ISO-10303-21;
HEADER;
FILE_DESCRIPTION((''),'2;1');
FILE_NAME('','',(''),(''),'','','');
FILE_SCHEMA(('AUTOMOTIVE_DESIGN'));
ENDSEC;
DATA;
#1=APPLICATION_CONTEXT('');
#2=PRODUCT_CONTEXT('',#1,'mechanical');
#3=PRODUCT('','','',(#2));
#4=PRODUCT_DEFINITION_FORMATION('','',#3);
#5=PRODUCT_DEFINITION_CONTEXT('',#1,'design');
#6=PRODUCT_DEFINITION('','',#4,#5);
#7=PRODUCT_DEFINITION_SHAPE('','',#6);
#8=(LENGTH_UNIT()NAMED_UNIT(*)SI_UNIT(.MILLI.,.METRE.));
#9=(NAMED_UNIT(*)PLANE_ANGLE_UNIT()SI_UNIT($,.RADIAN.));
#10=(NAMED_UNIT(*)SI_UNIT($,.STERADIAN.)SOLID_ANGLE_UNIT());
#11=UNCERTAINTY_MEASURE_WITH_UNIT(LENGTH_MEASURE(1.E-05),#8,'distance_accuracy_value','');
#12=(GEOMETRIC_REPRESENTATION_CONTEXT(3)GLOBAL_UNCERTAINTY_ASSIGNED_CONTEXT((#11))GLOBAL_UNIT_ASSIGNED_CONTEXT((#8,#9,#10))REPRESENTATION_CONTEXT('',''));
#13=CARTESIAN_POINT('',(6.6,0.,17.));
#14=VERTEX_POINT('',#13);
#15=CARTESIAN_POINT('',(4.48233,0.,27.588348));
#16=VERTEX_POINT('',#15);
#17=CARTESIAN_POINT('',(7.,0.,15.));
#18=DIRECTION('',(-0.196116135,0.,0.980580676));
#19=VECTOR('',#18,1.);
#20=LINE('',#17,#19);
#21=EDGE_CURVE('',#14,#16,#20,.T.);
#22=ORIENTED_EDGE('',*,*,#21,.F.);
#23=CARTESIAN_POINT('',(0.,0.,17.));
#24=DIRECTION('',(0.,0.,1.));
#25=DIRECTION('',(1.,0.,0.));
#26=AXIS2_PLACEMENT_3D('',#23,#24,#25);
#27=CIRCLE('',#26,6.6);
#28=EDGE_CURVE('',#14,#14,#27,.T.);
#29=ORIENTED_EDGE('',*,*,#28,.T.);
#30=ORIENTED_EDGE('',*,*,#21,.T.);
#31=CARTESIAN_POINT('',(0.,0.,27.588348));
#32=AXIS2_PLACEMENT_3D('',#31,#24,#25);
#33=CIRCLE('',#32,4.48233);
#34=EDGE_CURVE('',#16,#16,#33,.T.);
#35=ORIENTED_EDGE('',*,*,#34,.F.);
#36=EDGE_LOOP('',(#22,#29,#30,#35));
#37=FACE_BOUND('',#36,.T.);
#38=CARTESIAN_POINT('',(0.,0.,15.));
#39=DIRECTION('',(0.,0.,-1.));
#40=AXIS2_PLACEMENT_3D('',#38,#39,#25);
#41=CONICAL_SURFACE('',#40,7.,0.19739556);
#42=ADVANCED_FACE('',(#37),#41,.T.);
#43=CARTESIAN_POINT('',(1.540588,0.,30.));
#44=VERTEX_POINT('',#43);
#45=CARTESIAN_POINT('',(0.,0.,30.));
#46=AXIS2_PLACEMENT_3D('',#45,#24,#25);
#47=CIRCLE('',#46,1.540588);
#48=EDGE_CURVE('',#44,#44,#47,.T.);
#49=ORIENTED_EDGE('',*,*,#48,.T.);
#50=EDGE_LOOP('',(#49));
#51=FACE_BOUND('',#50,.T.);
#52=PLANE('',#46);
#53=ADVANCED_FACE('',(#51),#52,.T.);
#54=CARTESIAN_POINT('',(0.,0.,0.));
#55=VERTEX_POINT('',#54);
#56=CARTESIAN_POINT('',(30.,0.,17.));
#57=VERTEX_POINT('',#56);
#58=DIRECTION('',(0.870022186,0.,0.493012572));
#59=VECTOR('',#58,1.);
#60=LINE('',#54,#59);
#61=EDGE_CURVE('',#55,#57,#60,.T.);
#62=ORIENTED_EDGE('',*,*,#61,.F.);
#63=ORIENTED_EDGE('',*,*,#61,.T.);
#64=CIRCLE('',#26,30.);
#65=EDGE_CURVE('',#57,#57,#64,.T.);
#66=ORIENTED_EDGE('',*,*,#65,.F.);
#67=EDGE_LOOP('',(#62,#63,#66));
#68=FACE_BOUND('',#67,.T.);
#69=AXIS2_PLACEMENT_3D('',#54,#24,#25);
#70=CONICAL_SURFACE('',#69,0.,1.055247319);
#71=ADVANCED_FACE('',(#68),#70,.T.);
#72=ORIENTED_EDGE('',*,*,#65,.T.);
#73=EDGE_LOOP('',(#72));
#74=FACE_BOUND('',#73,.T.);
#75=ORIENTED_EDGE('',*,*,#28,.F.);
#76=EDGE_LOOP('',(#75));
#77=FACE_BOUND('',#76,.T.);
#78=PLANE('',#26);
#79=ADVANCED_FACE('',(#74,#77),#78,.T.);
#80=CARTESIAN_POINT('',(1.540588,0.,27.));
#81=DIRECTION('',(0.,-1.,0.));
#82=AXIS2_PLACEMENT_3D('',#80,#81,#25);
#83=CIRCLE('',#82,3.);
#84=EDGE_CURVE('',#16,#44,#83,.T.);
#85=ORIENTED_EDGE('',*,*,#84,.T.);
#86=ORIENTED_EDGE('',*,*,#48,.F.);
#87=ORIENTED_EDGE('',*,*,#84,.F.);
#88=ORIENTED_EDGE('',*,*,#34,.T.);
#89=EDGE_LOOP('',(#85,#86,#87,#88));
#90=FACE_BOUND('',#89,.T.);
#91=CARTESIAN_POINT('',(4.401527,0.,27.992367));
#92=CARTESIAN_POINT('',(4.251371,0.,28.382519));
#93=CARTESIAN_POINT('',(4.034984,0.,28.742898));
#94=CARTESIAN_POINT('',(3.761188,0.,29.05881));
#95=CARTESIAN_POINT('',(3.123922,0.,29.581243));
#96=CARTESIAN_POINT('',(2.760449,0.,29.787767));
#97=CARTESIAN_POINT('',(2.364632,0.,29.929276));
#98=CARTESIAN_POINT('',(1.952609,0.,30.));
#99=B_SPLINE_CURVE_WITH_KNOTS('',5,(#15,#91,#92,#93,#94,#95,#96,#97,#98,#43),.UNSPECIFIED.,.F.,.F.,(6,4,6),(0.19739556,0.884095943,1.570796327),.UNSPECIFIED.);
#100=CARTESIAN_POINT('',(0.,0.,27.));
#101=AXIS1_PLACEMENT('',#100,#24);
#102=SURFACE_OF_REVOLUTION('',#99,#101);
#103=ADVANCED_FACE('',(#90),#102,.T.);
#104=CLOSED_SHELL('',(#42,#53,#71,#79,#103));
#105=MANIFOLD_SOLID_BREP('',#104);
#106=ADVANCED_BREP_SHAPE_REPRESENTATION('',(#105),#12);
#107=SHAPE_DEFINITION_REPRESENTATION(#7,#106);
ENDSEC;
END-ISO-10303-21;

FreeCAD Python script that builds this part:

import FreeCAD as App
import Part
import Sketcher
Q = App.Units.Quantity


def edges_at(feature, points):
    """Names of the edges that pass closest to the given points."""
    edges = feature.Shape.Edges
    near = lambda p: min(range(len(edges)), key=lambda i: edges[i].distToShape(Part.Vertex(*p))[0])
    return sorted({f"Edge{near(p) + 1}" for p in points})

doc = App.newDocument("Part")
body = doc.addObject("PartDesign::Body", "Body")

sketch1 = body.newObject("Sketcher::SketchObject", "Sketch")
sketch1.AttachmentSupport = (doc.getObject("XZ_Plane"), [""])
sketch1.MapMode = "FlatFace"
sketch1.addGeometry([
    Part.LineSegment(App.Vector(0, 0, 0), App.Vector(30, 17, 0)),
    Part.LineSegment(App.Vector(30, 17, 0), App.Vector(0, 17, 0)),
    Part.LineSegment(App.Vector(0, 17, 0), App.Vector(0, 0, 0)),
], False)
sketch1.addConstraint([
    Sketcher.Constraint("Coincident", 0, 2, 1, 1),
    Sketcher.Constraint("Coincident", 1, 2, 2, 1),
    Sketcher.Constraint("Coincident", 2, 2, 0, 1),
    Sketcher.Constraint("Horizontal", 1),
    Sketcher.Constraint("Vertical", 2),
    Sketcher.Constraint("Coincident", 2, 2, -1, 1),
    Sketcher.Constraint("DistanceX", 1, 2, 1, 1, Q("30 mm")),
    Sketcher.Constraint("DistanceY", 2, 2, 2, 1, Q("17 mm")),
])
revolution = body.newObject("PartDesign::Revolution", "Revolution")
revolution.Profile = sketch1
revolution.ReferenceAxis = (sketch1, ["V_Axis"])
revolution.Angle = 360
body2 = doc.addObject("PartDesign::Body", "Body001")

sketch2 = body2.newObject("Sketcher::SketchObject", "Sketch001")
sketch2.AttachmentSupport = (doc.getObject("XZ_Plane001"), [""])
sketch2.MapMode = "FlatFace"
sketch2.addGeometry([
    Part.LineSegment(App.Vector(0, 15, 0), App.Vector(7, 15, 0)),
    Part.LineSegment(App.Vector(7, 15, 0), App.Vector(4, 30, 0)),
    Part.LineSegment(App.Vector(4, 30, 0), App.Vector(0, 30, 0)),
    Part.LineSegment(App.Vector(0, 30, 0), App.Vector(0, 15, 0)),
], False)
sketch2.addConstraint([
    Sketcher.Constraint("Coincident", 0, 2, 1, 1),
    Sketcher.Constraint("Coincident", 1, 2, 2, 1),
    Sketcher.Constraint("Coincident", 2, 2, 3, 1),
    Sketcher.Constraint("Coincident", 3, 2, 0, 1),
    Sketcher.Constraint("Horizontal", 0),
    Sketcher.Constraint("Horizontal", 2),
    Sketcher.Constraint("Vertical", 3),
    Sketcher.Constraint("PointOnObject", 2, 2, -2),
    Sketcher.Constraint("DistanceX", 0, 1, 0, 2, Q("7 mm")),
    Sketcher.Constraint("DistanceX", 2, 2, 2, 1, Q("4 mm")),
    Sketcher.Constraint("DistanceY", 3, 2, 3, 1, Q("15 mm")),
    Sketcher.Constraint("DistanceY", -1, 1, 0, 2, Q("15 mm")),
])
revolution2 = body2.newObject("PartDesign::Revolution", "Revolution001")
revolution2.Profile = sketch2
revolution2.ReferenceAxis = (sketch2, ["V_Axis"])
revolution2.Angle = 360
doc.recompute()

boolean = body2.newObject("PartDesign::Boolean", "Boolean")
boolean.Type = "Fuse"
boolean.addObjects([body])
doc.recompute()

fillet = body2.newObject("PartDesign::Fillet", "Fillet")
fillet.Base = (boolean, edges_at(boolean, [(-4, 0, 30)]))
fillet.Radius = 3

doc.recompute()
